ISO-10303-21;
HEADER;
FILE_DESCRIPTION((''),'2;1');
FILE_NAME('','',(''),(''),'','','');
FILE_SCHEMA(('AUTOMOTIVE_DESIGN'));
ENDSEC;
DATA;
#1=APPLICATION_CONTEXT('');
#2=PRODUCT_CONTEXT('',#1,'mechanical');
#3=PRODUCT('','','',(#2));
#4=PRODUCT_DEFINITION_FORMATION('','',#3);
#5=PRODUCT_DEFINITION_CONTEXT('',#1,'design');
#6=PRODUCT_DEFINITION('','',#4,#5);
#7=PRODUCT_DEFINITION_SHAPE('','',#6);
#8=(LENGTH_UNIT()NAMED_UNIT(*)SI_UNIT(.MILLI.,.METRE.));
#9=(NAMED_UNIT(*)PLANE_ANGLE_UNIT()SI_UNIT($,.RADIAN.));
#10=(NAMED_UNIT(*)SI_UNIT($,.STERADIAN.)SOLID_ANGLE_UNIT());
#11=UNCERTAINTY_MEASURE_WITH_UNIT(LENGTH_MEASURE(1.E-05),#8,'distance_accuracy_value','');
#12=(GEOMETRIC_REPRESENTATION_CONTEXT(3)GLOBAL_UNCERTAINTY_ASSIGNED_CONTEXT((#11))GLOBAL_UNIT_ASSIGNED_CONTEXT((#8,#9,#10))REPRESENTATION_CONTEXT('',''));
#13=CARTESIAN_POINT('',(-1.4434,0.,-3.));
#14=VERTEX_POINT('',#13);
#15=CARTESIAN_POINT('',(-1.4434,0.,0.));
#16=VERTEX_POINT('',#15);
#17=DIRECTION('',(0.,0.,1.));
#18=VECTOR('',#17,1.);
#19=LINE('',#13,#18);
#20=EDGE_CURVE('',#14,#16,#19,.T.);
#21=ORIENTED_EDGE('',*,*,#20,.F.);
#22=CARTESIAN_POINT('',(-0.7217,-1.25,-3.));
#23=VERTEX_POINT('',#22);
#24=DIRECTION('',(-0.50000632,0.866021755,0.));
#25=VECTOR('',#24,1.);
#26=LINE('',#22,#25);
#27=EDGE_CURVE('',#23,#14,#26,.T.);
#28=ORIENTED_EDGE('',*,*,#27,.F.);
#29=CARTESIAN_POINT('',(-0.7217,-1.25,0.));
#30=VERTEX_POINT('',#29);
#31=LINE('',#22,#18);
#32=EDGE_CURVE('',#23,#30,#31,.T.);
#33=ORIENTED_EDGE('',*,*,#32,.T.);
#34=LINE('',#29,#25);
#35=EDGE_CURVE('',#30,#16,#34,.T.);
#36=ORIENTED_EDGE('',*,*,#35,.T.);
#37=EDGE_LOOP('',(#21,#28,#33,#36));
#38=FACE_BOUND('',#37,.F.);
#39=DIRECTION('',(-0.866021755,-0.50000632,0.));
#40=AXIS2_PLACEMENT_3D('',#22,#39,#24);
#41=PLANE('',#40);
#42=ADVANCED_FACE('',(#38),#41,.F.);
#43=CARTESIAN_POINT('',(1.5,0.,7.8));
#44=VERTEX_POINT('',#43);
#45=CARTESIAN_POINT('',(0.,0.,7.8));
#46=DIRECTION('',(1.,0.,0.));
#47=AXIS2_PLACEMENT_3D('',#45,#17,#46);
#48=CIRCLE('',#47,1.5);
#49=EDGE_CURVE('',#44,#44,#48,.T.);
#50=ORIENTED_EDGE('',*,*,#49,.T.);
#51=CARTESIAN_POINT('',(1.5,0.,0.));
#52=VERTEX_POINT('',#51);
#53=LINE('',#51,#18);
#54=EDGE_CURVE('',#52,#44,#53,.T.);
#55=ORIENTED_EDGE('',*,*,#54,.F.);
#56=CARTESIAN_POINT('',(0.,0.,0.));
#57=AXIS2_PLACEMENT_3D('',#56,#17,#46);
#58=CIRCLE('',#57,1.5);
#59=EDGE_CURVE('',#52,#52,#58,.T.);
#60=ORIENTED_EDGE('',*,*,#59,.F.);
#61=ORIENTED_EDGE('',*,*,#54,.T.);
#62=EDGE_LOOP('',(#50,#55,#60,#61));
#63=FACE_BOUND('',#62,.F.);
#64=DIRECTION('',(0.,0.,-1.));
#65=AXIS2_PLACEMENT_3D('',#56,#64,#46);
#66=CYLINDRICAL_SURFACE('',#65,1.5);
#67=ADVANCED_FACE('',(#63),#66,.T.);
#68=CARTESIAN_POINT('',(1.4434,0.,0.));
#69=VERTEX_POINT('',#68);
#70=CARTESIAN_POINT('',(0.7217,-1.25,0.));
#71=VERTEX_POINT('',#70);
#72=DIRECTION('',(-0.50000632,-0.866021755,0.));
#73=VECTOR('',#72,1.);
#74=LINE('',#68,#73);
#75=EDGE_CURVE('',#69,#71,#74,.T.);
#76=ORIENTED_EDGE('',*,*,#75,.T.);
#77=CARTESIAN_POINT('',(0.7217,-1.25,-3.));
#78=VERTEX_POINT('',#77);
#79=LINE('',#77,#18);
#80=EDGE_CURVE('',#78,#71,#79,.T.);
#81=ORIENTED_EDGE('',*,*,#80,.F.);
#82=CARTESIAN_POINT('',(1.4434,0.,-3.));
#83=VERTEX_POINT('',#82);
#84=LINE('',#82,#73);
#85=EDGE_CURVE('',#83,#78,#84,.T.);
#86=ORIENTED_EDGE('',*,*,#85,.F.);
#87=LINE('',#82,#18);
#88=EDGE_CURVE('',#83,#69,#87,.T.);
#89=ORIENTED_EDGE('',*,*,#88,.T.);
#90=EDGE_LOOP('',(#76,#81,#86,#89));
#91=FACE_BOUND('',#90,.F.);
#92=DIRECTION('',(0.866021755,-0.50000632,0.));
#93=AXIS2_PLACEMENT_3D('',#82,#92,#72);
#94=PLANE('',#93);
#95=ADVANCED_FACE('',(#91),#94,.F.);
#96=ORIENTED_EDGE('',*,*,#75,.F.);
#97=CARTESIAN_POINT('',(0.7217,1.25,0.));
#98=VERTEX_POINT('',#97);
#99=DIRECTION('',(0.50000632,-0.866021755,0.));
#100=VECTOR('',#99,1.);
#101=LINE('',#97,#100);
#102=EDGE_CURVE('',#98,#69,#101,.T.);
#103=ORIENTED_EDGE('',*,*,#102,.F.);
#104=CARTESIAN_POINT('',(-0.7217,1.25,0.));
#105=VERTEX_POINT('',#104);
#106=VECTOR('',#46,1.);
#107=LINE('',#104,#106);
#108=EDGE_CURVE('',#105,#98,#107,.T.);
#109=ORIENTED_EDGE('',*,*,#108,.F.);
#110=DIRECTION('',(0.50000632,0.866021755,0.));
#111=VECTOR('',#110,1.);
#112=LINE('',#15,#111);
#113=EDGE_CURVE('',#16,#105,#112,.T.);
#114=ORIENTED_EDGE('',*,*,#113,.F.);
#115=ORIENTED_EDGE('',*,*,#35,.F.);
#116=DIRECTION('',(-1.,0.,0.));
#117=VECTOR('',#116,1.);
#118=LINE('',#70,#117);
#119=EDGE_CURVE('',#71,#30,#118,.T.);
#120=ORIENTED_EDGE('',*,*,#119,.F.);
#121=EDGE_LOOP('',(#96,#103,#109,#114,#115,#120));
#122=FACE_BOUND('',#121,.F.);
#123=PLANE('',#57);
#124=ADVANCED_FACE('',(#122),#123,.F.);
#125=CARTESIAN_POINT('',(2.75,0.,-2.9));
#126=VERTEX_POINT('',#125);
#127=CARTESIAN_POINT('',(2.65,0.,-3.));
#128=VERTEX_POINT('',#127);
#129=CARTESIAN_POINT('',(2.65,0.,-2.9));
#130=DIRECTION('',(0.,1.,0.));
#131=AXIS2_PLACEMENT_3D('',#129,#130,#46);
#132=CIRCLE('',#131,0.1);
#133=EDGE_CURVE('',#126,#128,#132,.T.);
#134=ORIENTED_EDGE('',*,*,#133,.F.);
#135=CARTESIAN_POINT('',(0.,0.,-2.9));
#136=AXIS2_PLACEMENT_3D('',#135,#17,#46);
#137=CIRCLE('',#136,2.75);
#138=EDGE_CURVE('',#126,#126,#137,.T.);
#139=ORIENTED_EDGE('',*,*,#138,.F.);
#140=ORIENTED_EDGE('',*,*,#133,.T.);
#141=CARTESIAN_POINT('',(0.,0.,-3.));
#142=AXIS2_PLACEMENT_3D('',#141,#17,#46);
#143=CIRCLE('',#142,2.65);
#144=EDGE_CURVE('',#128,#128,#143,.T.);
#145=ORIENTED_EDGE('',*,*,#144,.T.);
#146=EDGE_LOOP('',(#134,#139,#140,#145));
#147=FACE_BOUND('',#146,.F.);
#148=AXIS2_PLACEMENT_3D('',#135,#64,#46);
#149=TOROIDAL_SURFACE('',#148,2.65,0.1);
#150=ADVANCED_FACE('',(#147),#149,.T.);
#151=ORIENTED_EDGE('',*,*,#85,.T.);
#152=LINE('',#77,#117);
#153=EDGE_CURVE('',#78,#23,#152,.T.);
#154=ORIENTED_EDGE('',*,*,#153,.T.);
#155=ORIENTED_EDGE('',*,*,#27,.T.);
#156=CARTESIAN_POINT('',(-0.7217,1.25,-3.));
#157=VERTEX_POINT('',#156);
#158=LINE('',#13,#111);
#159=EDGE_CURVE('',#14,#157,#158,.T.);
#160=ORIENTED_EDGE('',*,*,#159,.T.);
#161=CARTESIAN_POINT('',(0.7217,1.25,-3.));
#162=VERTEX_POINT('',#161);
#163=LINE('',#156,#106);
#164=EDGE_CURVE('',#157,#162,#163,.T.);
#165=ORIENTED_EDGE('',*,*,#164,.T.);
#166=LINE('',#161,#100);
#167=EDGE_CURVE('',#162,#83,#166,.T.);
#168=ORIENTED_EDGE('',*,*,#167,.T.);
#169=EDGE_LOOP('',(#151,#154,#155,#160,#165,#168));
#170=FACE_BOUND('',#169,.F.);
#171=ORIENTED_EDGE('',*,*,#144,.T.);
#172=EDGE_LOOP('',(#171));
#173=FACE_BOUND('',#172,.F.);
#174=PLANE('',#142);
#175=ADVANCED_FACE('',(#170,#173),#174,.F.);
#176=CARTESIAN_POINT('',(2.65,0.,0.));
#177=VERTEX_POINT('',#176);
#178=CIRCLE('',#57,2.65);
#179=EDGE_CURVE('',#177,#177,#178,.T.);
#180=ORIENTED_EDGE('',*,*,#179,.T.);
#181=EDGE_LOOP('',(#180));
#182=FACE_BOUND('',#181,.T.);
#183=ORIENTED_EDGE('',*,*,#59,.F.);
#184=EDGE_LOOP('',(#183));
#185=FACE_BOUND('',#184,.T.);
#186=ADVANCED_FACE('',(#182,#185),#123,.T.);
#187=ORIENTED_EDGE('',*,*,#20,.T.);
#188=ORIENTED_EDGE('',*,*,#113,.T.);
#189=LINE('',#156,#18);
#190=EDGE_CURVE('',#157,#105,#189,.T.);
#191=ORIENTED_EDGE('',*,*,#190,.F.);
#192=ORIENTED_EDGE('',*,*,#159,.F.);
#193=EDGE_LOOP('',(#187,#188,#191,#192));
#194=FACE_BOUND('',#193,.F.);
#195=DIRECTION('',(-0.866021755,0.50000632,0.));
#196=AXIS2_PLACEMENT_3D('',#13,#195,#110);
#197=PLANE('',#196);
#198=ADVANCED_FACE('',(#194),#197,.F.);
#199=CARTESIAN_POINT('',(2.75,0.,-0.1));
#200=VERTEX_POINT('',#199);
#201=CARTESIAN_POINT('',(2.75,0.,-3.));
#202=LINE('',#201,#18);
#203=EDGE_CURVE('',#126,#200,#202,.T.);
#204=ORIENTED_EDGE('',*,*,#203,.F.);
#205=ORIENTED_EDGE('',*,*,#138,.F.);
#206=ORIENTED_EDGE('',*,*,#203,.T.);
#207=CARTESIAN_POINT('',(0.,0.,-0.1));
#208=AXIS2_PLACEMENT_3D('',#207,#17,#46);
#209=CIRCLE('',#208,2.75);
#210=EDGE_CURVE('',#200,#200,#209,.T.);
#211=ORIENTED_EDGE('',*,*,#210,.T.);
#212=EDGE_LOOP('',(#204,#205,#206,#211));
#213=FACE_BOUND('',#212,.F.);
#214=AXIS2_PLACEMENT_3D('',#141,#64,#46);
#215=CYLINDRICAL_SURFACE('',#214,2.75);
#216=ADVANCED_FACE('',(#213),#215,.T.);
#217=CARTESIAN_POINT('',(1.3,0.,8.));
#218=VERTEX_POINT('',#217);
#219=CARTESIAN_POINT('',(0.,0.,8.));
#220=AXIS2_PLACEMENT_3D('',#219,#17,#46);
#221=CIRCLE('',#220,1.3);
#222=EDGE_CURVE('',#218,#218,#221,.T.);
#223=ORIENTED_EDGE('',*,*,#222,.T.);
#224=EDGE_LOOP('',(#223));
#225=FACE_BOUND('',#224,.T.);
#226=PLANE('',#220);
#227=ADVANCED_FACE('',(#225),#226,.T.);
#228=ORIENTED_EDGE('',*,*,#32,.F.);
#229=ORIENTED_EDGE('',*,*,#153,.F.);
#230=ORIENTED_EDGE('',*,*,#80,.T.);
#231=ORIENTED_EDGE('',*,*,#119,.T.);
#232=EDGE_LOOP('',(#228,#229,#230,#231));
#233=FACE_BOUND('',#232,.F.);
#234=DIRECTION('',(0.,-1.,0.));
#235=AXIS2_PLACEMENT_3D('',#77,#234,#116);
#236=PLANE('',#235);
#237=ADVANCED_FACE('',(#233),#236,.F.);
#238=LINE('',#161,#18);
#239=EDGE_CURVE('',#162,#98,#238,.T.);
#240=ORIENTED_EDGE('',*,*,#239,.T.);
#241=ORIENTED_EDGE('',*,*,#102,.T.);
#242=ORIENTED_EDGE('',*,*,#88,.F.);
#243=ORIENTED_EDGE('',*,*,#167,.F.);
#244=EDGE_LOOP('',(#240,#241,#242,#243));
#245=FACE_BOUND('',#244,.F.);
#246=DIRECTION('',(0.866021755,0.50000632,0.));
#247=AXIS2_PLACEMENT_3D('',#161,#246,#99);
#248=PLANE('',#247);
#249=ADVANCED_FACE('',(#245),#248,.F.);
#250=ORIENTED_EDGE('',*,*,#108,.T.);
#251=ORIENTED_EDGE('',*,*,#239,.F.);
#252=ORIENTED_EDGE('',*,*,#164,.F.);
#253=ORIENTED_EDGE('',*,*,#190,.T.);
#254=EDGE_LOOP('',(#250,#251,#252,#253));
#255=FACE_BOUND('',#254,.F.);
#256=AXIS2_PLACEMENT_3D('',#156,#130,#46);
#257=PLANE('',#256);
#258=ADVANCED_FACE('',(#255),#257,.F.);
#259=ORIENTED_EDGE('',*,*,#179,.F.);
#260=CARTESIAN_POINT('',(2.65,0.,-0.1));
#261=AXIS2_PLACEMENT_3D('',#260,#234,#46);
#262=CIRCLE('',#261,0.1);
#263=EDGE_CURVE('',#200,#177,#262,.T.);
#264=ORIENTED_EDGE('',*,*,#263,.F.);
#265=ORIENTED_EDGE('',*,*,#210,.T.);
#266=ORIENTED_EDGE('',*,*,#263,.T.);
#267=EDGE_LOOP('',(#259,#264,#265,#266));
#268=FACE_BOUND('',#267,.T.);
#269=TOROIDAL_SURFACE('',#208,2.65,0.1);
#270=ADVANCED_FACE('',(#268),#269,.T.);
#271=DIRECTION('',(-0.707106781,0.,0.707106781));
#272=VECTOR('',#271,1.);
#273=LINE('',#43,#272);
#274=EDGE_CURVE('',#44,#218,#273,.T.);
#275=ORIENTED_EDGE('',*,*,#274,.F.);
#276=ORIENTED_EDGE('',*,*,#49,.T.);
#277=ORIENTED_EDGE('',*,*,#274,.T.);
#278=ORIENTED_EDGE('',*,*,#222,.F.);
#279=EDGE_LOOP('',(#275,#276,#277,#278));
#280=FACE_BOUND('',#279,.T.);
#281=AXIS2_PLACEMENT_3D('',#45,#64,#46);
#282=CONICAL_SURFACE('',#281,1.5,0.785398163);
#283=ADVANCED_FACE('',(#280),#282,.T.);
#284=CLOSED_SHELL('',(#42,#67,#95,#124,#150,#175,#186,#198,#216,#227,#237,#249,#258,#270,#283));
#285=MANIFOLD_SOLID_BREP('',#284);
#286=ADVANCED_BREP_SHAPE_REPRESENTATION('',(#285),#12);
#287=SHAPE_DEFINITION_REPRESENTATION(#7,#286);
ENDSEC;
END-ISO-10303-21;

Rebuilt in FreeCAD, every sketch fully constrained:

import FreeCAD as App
import Part
import Sketcher

V = App.Vector
Q = App.Units.Quantity


def edges_at(feature, points):
    """Names of the edges that pass closest to the given points."""
    edges = feature.Shape.Edges
    near = lambda p: min(range(len(edges)), key=lambda i: edges[i].distToShape(Part.Vertex(*p))[0])
    return sorted({f"Edge{near(p) + 1}" for p in points})

doc = App.newDocument("Part")
body = doc.addObject("PartDesign::Body", "Body")

sketch1 = doc.addObject("Sketcher::SketchObject", "Sketch")
body.addObject(sketch1)
sketch1.AttachmentSupport = (doc.XY_Plane, [""])
sketch1.MapMode = "FlatFace"
sketch1.AttachmentOffset = App.Placement(V(0, 0, -3), App.Rotation())
sketch1.addGeometry(Part.Circle(V(0, 0, 0), V(0, 0, 1), 2.8), False)
sketch1.addConstraint([
    Sketcher.Constraint("Coincident", 0, 3, -1, 1),
    Sketcher.Constraint("Diameter", 0, Q("5.5 mm")),
])
pad1 = doc.addObject("PartDesign::Pad", "Pad")
body.addObject(pad1)
pad1.Profile = sketch1
pad1.Length = 3
doc.recompute()

fillet = doc.addObject("PartDesign::Fillet", "Fillet")
body.addObject(fillet)
fillet.Base = (pad1, edges_at(pad1, [(-2.75, 0, -3), (-2.75, 0, 0)]))
fillet.Radius = 0.1

sketch2 = doc.addObject("Sketcher::SketchObject", "Sketch001")
body.addObject(sketch2)
sketch2.AttachmentSupport = (doc.XY_Plane, [""])
sketch2.MapMode = "FlatFace"
sketch2.AttachmentOffset = App.Placement(V(0, 0, -3), App.Rotation())
sketch2.addGeometry([
    Part.LineSegment(V(0.7, 1.2, 0), V(-0.7, 1.2, 0)),
    Part.LineSegment(V(-0.7, 1.2, 0), V(-1.4, 0, 0)),
    Part.LineSegment(V(-1.4, 0, 0), V(-0.7, -1.2, 0)),
    Part.LineSegment(V(-0.7, -1.2, 0), V(0.7, -1.2, 0)),
    Part.LineSegment(V(0.7, -1.2, 0), V(1.4, 0, 0)),
    Part.LineSegment(V(1.4, 0, 0), V(0.7, 1.2, 0)),
], False)
sketch2.addConstraint([
    Sketcher.Constraint("Coincident", 0, 2, 1, 1),
    Sketcher.Constraint("Coincident", 1, 2, 2, 1),
    Sketcher.Constraint("Coincident", 2, 2, 3, 1),
    Sketcher.Constraint("Coincident", 3, 2, 4, 1),
    Sketcher.Constraint("Coincident", 4, 2, 5, 1),
    Sketcher.Constraint("Coincident", 5, 2, 0, 1),
    Sketcher.Constraint("Horizontal", 0),
    Sketcher.Constraint("Horizontal", 3),
    Sketcher.Constraint("Symmetric", 0, 2, 3, 2, -1, 1),
    Sketcher.Constraint("Symmetric", 1, 2, 4, 2, -1, 1),
    Sketcher.Constraint("PointOnObject", 1, 2, -1),
    Sketcher.Constraint("Parallel", 2, 5),
    Sketcher.Constraint("Vertical", 0, 2, 2, 2),
    Sketcher.Constraint("Angle", 1, Q("-120.0004 deg")),
    Sketcher.Constraint("DistanceY", 2, 2, 0, 2, Q("2.5 mm")),
    Sketcher.Constraint("DistanceX", 0, 2, 0, 1, Q("1.4434 mm")),
])
pocket1 = doc.addObject("PartDesign::Pocket", "Pocket")
body.addObject(pocket1)
pocket1.Profile = sketch2
pocket1.Length = 3
pocket1.Reversed = True

sketch3 = doc.addObject("Sketcher::SketchObject", "Sketch002")
body.addObject(sketch3)
sketch3.AttachmentSupport = (doc.XY_Plane, [""])
sketch3.MapMode = "FlatFace"
sketch3.addGeometry(Part.Circle(V(0, 0, 0), V(0, 0, 1), 1.5), False)
sketch3.addConstraint([
    Sketcher.Constraint("Coincident", 0, 3, -1, 1),
    Sketcher.Constraint("Diameter", 0, Q("3 mm")),
])
pad2 = doc.addObject("PartDesign::Pad", "Pad001")
body.addObject(pad2)
pad2.Profile = sketch3
pad2.Length = 8
doc.recompute()

chamfer = doc.addObject("PartDesign::Chamfer", "Chamfer")
body.addObject(chamfer)
chamfer.Base = (pad2, edges_at(pad2, [(-1.5, 0, 8)]))
chamfer.Size = 0.2

doc.recompute()
